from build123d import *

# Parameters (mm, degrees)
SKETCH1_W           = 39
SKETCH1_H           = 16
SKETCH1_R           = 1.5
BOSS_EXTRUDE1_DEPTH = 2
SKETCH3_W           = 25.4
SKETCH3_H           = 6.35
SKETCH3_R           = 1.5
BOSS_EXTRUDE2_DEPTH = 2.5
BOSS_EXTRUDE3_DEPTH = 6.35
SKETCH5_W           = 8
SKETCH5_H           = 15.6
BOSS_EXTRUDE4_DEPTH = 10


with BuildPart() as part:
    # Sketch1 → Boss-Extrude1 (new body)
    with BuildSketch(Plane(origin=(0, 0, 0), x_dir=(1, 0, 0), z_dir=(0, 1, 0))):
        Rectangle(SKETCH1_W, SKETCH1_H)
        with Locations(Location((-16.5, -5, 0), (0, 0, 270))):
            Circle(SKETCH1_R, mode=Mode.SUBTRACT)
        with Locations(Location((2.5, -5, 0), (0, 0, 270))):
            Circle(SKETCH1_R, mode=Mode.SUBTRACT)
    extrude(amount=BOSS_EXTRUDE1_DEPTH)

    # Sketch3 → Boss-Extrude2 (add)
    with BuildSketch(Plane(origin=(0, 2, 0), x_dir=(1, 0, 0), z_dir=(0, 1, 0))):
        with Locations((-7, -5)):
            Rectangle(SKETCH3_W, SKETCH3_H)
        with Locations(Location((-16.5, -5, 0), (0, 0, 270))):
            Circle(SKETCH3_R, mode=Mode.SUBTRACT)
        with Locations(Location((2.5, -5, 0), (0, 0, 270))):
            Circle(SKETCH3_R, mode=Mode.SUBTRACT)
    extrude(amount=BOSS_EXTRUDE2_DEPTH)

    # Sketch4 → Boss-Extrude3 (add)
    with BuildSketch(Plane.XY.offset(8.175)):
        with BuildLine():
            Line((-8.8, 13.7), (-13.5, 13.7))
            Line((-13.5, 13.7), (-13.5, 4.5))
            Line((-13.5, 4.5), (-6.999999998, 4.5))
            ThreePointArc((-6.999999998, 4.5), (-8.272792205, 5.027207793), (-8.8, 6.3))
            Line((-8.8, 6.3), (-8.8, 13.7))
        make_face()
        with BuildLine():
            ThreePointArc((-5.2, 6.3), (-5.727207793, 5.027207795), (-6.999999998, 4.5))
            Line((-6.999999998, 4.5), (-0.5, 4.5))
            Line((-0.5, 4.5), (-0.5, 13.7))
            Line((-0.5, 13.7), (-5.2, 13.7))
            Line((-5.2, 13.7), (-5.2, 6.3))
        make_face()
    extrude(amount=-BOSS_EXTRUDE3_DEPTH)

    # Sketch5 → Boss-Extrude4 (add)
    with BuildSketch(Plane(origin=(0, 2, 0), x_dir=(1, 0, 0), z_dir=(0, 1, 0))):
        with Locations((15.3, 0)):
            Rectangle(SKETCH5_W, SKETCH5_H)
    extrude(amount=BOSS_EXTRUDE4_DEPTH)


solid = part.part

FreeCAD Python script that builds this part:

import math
import FreeCAD as App
import Part
import Sketcher
Q = App.Units.Quantity


def add_polygon(sketch, points):
    """Adds a closed chain of lines whose ends are joined by coincident constraints."""
    first, n = sketch.GeometryCount, len(points)
    for a, b in zip(points, points[1:] + points[:1]):
        sketch.addGeometry(Part.LineSegment(App.Vector(*a, 0), App.Vector(*b, 0)), False)
    for i in range(n):
        sketch.addConstraint(Sketcher.Constraint("Coincident", first + i, 2, first + (i + 1) % n, 1))

doc = App.newDocument("Part")
params = doc.addObject("Spreadsheet::Sheet", "Params")
for row, (alias, value) in enumerate([
    ("sketch1_diameter", "3 mm"),
    ("sketch1_width", "39 mm"),
    ("sketch1_height", "16 mm"),
    ("pad1_length", "2 mm"),
    ("sketch2_diameter", "3 mm"),
    ("sketch2_width", "25.4 mm"),
    ("sketch2_height", "6.35 mm"),
    ("pad2_length", "2.5 mm"),
    ("sketch3_radius", "1.8 mm"),
    ("sketch3_width", "4.7 mm"),
    ("sketch3_height", "9.2 mm"),
    ("pad3_length", "6.35 mm"),
    ("sketch4_width", "8 mm"),
    ("sketch4_height", "15.6 mm"),
    ("pad4_length", "10 mm"),
], start=1):
    params.set(f"A{row}", alias)
    params.set(f"B{row}", "=" + value)
    params.setAlias(f"B{row}", alias)

body = doc.addObject("PartDesign::Body", "Body")

# Sketch on XZ plane
sketch1 = doc.addObject("Sketcher::SketchObject", "Sketch")
body.addObject(sketch1)
sketch1.AttachmentSupport = (doc.XZ_Plane, [""])
sketch1.MapMode = "FlatFace"
add_polygon(sketch1, [(-19.5, -8), (-19.5, 8), (19.5, 8), (19.5, -8)])  # lines 0-3
sketch1.addGeometry(Part.Circle(App.Vector(-16.5, 5, 0), App.Vector(0, 0, 1), 1.5), False)  # 4
sketch1.addGeometry(Part.Circle(App.Vector(2.5, 5, 0), App.Vector(0, 0, 1), 1.5), False)  # 5
sketch1.addConstraint([
    Sketcher.Constraint("Vertical", 0),
    Sketcher.Constraint("Horizontal", 1),
    Sketcher.Constraint("Vertical", 2),
    Sketcher.Constraint("Horizontal", 3),
    Sketcher.Constraint("Equal", 4, 5),
    Sketcher.Constraint("Symmetric", 0, 2, 2, 2, -1, 1),
    Sketcher.Constraint("Horizontal", 4, 3, 5, 3),
    Sketcher.Constraint("Diameter", 4, Q("3 mm")),
    Sketcher.Constraint("DistanceX", 1, 1, 1, 2, Q("39 mm")),
    Sketcher.Constraint("DistanceY", 0, 1, 0, 2, Q("16 mm")),
    Sketcher.Constraint("DistanceY", -1, 1, 4, 3, Q("5 mm")),
    Sketcher.Constraint("DistanceX", 4, 3, 5, 3, Q("19 mm")),
    Sketcher.Constraint("DistanceX", 0, 2, 4, 3, Q("3 mm")),
])
sketch1.setExpression("Constraints[11]", "Params.sketch1_diameter")
sketch1.setExpression("Constraints[12]", "Params.sketch1_width")
sketch1.setExpression("Constraints[13]", "Params.sketch1_height")
pad1 = doc.addObject("PartDesign::Pad", "Pad")
body.addObject(pad1)
pad1.Profile = sketch1
pad1.setExpression("Length", "Params.pad1_length")
pad1.Reversed = True

# Sketch on XZ plane
sketch2 = doc.addObject("Sketcher::SketchObject", "Sketch001")
body.addObject(sketch2)
sketch2.AttachmentSupport = (doc.XZ_Plane, [""])
sketch2.MapMode = "FlatFace"
sketch2.AttachmentOffset = App.Placement(App.Vector(0, 0, -2), App.Rotation())
add_polygon(sketch2, [(-19.7, 1.8), (-19.7, 8.2), (5.7, 8.2), (5.7, 1.8)])  # lines 0-3
sketch2.addGeometry(Part.Circle(App.Vector(-16.5, 5, 0), App.Vector(0, 0, 1), 1.5), False)  # 4
sketch2.addGeometry(Part.Circle(App.Vector(2.5, 5, 0), App.Vector(0, 0, 1), 1.5), False)  # 5
sketch2.addConstraint([
    Sketcher.Constraint("Vertical", 0),
    Sketcher.Constraint("Horizontal", 1),
    Sketcher.Constraint("Vertical", 2),
    Sketcher.Constraint("Horizontal", 3),
    Sketcher.Constraint("Equal", 4, 5),
    Sketcher.Constraint("Horizontal", 4, 3, 5, 3),
    Sketcher.Constraint("Diameter", 4, Q("3 mm")),
    Sketcher.Constraint("DistanceX", 1, 1, 1, 2, Q("25.4 mm")),
    Sketcher.Constraint("DistanceY", -1, 1, 4, 3, Q("5 mm")),
    Sketcher.Constraint("DistanceX", 4, 3, 5, 3, Q("19 mm")),
    Sketcher.Constraint("DistanceY", 0, 1, 0, 2, Q("6.35 mm")),
    Sketcher.Constraint("DistanceX", 4, 3, -1, 1, Q("16.5 mm")),
    Sketcher.Constraint("DistanceX", 0, 2, -1, 1, Q("19.7 mm")),
    Sketcher.Constraint("DistanceY", -1, 1, 0, 2, Q("8.175 mm")),
])
sketch2.setExpression("Constraints[10]", "Params.sketch2_diameter")
sketch2.setExpression("Constraints[11]", "Params.sketch2_width")
sketch2.setExpression("Constraints[14]", "Params.sketch2_height")
pad2 = doc.addObject("PartDesign::Pad", "Pad001")
body.addObject(pad2)
pad2.Profile = sketch2
pad2.setExpression("Length", "Params.pad2_length")
pad2.Reversed = True

# Sketch on XY plane
sketch3 = doc.addObject("Sketcher::SketchObject", "Sketch002")
body.addObject(sketch3)
sketch3.AttachmentSupport = (doc.XY_Plane, [""])
sketch3.MapMode = "FlatFace"
sketch3.AttachmentOffset = App.Placement(App.Vector(0, 0, 8.175), App.Rotation())
sketch3.addGeometry([
    Part.LineSegment(App.Vector(-8.8, 13.7, 0), App.Vector(-13.5, 13.7, 0)),  # 0
    Part.LineSegment(App.Vector(-13.5, 13.7, 0), App.Vector(-13.5, 4.5, 0)),  # 1
    Part.LineSegment(App.Vector(-13.5, 4.5, 0), App.Vector(-7, 4.5, 0)),  # 2
    Part.ArcOfCircle(Part.Circle(App.Vector(-7, 6.3, 0), App.Vector(0, 0, 1), 1.8), math.radians(180), math.radians(270)),  # 3
    Part.LineSegment(App.Vector(-8.8, 6.3, 0), App.Vector(-8.8, 13.7, 0)),  # 4
    Part.ArcOfCircle(Part.Circle(App.Vector(-7, 6.3, 0), App.Vector(0, 0, 1), 1.8), math.radians(-90), math.radians(0)),  # 5
    Part.LineSegment(App.Vector(-7, 4.5, 0), App.Vector(-0.5, 4.5, 0)),  # 6
    Part.LineSegment(App.Vector(-0.5, 4.5, 0), App.Vector(-0.5, 13.7, 0)),  # 7
    Part.LineSegment(App.Vector(-0.5, 13.7, 0), App.Vector(-5.2, 13.7, 0)),  # 8
    Part.LineSegment(App.Vector(-5.2, 13.7, 0), App.Vector(-5.2, 6.3, 0)),  # 9
], False)
sketch3.addConstraint([
    Sketcher.Constraint("Coincident", 0, 2, 1, 1),
    Sketcher.Constraint("Coincident", 1, 2, 2, 1),
    Sketcher.Constraint("Tangent", 2, 2, 3, 2),
    Sketcher.Constraint("Tangent", 3, 1, 4, 1),
    Sketcher.Constraint("Coincident", 4, 2, 0, 1),
    Sketcher.Constraint("Tangent", 5, 1, 6, 1),
    Sketcher.Constraint("Coincident", 6, 2, 7, 1),
    Sketcher.Constraint("Coincident", 7, 2, 8, 1),
    Sketcher.Constraint("Coincident", 8, 2, 9, 1),
    Sketcher.Constraint("Tangent", 9, 2, 5, 2),
    Sketcher.Constraint("Horizontal", 0),
    Sketcher.Constraint("Vertical", 1),
    Sketcher.Constraint("Horizontal", 2),
    Sketcher.Constraint("Vertical", 4),
    Sketcher.Constraint("Horizontal", 6),
    Sketcher.Constraint("Vertical", 7),
    Sketcher.Constraint("Horizontal", 8),
    Sketcher.Constraint("Vertical", 9),
    Sketcher.Constraint("Coincident", 5, 3, 3, 3),
    Sketcher.Constraint("Equal", 3, 5),
    Sketcher.Constraint("Horizontal", 4, 2, 7, 2),
    Sketcher.Constraint("Equal", 2, 6),
    Sketcher.Constraint("Radius", 3, Q("1.8 mm")),
    Sketcher.Constraint("DistanceX", 0, 2, 0, 1, Q("4.7 mm")),
    Sketcher.Constraint("DistanceY", 1, 2, 1, 1, Q("9.2 mm")),
    Sketcher.Constraint("DistanceX", 3, 3, -1, 1, Q("7 mm")),
    Sketcher.Constraint("DistanceY", -1, 1, 3, 3, Q("6.3 mm")),
])
sketch3.setExpression("Constraints[22]", "Params.sketch3_radius")
sketch3.setExpression("Constraints[23]", "Params.sketch3_width")
sketch3.setExpression("Constraints[24]", "Params.sketch3_height")
pad3 = doc.addObject("PartDesign::Pad", "Pad002")
body.addObject(pad3)
pad3.Profile = sketch3
pad3.setExpression("Length", "Params.pad3_length")
pad3.Reversed = True

# Sketch on XZ plane
sketch4 = doc.addObject("Sketcher::SketchObject", "Sketch003")
body.addObject(sketch4)
sketch4.AttachmentSupport = (doc.XZ_Plane, [""])
sketch4.MapMode = "FlatFace"
sketch4.AttachmentOffset = App.Placement(App.Vector(0, 0, -2), App.Rotation())
add_polygon(sketch4, [(11, -8), (11, 8), (19, 8), (19, -8)])  # lines 0-3
sketch4.addConstraint([
    Sketcher.Constraint("Vertical", 0),
    Sketcher.Constraint("Horizontal", 1),
    Sketcher.Constraint("Vertical", 2),
    Sketcher.Constraint("Horizontal", 3),
    Sketcher.Constraint("DistanceX", 1, 1, 1, 2, Q("8 mm")),
    Sketcher.Constraint("DistanceY", 0, 1, 0, 2, Q("15.6 mm")),
    Sketcher.Constraint("DistanceX", -1, 1, 0, 2, Q("11.3 mm")),
    Sketcher.Constraint("DistanceY", -1, 1, 0, 2, Q("7.8 mm")),
])
sketch4.setExpression("Constraints[8]", "Params.sketch4_width")
sketch4.setExpression("Constraints[9]", "Params.sketch4_height")
pad4 = doc.addObject("PartDesign::Pad", "Pad003")
body.addObject(pad4)
pad4.Profile = sketch4
pad4.setExpression("Length", "Params.pad4_length")
pad4.Reversed = True

doc.recompute()
